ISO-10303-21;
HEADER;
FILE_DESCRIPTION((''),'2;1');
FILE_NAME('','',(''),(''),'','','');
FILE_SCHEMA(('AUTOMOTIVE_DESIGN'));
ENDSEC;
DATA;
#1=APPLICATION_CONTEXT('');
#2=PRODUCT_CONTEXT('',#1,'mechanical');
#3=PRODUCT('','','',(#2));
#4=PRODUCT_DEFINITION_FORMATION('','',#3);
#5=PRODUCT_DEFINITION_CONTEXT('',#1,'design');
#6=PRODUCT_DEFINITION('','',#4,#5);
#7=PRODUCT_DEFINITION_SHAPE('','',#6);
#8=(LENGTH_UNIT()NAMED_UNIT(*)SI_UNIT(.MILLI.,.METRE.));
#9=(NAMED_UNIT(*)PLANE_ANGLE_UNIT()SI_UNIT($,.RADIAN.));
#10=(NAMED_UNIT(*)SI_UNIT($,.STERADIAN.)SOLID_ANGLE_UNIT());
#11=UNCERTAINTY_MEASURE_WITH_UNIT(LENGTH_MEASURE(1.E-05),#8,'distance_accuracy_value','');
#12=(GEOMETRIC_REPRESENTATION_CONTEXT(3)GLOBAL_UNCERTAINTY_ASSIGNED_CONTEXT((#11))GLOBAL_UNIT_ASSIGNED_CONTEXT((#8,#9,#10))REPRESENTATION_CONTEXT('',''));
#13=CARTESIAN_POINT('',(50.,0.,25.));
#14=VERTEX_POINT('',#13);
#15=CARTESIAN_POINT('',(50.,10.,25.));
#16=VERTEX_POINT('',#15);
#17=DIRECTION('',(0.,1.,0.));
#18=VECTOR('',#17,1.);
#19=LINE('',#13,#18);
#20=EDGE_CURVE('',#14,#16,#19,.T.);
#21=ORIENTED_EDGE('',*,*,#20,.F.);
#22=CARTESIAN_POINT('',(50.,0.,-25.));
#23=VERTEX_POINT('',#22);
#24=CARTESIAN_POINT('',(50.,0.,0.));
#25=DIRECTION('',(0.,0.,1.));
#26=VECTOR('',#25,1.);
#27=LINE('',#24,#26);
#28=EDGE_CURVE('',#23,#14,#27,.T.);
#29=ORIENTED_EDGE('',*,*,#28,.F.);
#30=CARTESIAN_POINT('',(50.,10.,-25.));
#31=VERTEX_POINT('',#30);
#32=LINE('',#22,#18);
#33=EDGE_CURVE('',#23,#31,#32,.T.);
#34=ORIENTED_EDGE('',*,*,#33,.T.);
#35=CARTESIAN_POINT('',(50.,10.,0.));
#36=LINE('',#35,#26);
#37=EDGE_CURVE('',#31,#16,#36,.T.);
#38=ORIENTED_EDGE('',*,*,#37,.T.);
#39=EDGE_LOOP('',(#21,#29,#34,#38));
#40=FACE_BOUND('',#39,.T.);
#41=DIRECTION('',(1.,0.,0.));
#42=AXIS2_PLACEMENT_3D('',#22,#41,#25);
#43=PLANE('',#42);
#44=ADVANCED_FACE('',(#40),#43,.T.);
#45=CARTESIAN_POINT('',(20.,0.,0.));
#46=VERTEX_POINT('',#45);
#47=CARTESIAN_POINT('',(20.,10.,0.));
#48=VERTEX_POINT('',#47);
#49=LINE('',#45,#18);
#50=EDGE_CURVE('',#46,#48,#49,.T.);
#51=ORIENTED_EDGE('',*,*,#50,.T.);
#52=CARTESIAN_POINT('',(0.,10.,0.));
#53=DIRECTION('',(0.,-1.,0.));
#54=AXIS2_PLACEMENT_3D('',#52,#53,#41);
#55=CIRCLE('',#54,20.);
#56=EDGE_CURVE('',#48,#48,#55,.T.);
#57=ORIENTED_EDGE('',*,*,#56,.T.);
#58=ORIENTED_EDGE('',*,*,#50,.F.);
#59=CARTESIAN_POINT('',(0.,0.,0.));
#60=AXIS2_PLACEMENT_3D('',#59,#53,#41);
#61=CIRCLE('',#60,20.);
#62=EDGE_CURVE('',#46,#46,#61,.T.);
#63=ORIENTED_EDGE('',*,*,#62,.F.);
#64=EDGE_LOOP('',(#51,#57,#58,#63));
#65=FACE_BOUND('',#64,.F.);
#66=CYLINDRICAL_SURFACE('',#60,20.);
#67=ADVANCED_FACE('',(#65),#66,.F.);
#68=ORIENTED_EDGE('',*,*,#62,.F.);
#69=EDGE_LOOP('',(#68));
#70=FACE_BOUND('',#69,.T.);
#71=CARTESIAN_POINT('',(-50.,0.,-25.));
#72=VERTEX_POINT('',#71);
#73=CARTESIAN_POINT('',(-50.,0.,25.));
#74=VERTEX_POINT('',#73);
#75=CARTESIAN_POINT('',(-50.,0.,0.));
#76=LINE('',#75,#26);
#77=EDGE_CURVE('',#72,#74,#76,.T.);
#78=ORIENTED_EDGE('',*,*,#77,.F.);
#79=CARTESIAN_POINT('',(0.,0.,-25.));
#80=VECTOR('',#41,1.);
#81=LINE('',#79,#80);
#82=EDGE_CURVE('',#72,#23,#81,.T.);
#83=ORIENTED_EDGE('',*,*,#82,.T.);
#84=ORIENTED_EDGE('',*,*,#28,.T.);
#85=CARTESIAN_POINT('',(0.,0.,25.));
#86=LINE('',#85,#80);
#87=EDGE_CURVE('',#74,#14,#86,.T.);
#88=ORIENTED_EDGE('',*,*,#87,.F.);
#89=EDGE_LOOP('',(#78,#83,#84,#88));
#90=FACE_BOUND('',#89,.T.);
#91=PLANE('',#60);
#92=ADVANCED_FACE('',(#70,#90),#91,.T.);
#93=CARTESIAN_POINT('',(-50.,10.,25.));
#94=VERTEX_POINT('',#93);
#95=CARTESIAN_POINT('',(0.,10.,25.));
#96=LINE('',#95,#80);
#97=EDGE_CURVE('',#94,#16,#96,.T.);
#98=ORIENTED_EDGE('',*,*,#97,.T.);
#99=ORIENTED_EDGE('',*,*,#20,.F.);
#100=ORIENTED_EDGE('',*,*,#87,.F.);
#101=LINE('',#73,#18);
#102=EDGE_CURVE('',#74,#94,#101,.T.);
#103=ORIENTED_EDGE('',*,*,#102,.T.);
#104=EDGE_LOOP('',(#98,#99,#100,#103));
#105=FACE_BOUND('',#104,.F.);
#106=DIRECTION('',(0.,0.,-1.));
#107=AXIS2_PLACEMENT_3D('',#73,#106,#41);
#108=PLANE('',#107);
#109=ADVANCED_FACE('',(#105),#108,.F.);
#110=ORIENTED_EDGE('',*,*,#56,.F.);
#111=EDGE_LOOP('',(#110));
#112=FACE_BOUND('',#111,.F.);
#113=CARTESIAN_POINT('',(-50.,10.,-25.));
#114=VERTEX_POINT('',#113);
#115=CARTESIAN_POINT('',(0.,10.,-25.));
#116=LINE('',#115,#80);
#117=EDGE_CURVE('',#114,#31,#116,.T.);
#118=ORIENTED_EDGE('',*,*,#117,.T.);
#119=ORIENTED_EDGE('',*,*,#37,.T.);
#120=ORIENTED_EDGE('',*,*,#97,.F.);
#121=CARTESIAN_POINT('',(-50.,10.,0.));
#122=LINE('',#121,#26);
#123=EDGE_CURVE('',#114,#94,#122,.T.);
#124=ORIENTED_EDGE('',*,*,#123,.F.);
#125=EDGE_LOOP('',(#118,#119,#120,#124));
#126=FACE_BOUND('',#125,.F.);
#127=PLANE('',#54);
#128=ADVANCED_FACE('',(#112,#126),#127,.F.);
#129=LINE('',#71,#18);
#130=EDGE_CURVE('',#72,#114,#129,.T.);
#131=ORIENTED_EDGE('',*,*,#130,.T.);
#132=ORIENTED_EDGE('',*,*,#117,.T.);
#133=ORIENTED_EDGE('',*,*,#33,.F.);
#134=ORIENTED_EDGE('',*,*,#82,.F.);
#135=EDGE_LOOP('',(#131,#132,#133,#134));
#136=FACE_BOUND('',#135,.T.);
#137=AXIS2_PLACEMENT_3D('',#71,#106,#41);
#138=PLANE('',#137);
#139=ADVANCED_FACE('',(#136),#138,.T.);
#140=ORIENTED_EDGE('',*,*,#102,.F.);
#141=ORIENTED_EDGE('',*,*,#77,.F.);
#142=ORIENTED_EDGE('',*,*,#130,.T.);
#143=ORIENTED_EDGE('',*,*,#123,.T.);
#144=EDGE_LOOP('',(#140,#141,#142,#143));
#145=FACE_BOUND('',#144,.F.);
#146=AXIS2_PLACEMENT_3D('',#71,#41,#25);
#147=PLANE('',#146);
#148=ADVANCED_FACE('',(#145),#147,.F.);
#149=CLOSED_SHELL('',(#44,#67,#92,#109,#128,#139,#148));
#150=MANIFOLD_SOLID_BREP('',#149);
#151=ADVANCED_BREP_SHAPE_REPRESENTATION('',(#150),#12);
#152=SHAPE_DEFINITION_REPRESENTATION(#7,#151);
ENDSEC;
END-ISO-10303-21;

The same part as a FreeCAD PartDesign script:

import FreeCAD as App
import Part
import Sketcher
Q = App.Units.Quantity


def add_polygon(sketch, points):
    """Adds a closed chain of lines whose ends are joined by coincident constraints."""
    first, n = sketch.GeometryCount, len(points)
    for a, b in zip(points, points[1:] + points[:1]):
        sketch.addGeometry(Part.LineSegment(App.Vector(*a, 0), App.Vector(*b, 0)), False)
    for i in range(n):
        sketch.addConstraint(Sketcher.Constraint("Coincident", first + i, 2, first + (i + 1) % n, 1))

doc = App.newDocument("Part")
body = doc.addObject("PartDesign::Body", "Body")

sketch1 = body.newObject("Sketcher::SketchObject", "Sketch")
sketch1.AttachmentSupport = (doc.getObject("XZ_Plane"), [""])
sketch1.MapMode = "FlatFace"
add_polygon(sketch1, [(-50, 25), (-50, -25), (50, -25), (50, 25)])
sketch1.addConstraint(Sketcher.Constraint("Vertical", 0))
sketch1.addConstraint(Sketcher.Constraint("Horizontal", 1))
sketch1.addConstraint(Sketcher.Constraint("Vertical", 2))
sketch1.addConstraint(Sketcher.Constraint("Horizontal", 3))
sketch1.addConstraint(Sketcher.Constraint("Symmetric", 0, 2, 2, 2, -1, 1))
sketch1.addConstraint(Sketcher.Constraint("DistanceX", 1, 1, 1, 2, Q("100 mm")))
sketch1.addConstraint(Sketcher.Constraint("DistanceY", 0, 2, 0, 1, Q("50 mm")))
pad1 = body.newObject("PartDesign::Pad", "Pad")
pad1.Profile = sketch1
pad1.Length = 10
pad1.Reversed = True

sketch2 = body.newObject("Sketcher::SketchObject", "Sketch001")
sketch2.AttachmentSupport = (doc.getObject("XZ_Plane"), [""])
sketch2.MapMode = "FlatFace"
sketch2.addGeometry(Part.Circle(App.Vector(0, 0, 0), App.Vector(0, 0, 1), 20), False)
sketch2.addConstraint(Sketcher.Constraint("Coincident", 0, 3, -1, 1))
sketch2.addConstraint(Sketcher.Constraint("Diameter", 0, Q("40 mm")))
pocket1 = body.newObject("PartDesign::Pocket", "Pocket")
pocket1.Profile = sketch2
pocket1.Length = 45

doc.recompute()
